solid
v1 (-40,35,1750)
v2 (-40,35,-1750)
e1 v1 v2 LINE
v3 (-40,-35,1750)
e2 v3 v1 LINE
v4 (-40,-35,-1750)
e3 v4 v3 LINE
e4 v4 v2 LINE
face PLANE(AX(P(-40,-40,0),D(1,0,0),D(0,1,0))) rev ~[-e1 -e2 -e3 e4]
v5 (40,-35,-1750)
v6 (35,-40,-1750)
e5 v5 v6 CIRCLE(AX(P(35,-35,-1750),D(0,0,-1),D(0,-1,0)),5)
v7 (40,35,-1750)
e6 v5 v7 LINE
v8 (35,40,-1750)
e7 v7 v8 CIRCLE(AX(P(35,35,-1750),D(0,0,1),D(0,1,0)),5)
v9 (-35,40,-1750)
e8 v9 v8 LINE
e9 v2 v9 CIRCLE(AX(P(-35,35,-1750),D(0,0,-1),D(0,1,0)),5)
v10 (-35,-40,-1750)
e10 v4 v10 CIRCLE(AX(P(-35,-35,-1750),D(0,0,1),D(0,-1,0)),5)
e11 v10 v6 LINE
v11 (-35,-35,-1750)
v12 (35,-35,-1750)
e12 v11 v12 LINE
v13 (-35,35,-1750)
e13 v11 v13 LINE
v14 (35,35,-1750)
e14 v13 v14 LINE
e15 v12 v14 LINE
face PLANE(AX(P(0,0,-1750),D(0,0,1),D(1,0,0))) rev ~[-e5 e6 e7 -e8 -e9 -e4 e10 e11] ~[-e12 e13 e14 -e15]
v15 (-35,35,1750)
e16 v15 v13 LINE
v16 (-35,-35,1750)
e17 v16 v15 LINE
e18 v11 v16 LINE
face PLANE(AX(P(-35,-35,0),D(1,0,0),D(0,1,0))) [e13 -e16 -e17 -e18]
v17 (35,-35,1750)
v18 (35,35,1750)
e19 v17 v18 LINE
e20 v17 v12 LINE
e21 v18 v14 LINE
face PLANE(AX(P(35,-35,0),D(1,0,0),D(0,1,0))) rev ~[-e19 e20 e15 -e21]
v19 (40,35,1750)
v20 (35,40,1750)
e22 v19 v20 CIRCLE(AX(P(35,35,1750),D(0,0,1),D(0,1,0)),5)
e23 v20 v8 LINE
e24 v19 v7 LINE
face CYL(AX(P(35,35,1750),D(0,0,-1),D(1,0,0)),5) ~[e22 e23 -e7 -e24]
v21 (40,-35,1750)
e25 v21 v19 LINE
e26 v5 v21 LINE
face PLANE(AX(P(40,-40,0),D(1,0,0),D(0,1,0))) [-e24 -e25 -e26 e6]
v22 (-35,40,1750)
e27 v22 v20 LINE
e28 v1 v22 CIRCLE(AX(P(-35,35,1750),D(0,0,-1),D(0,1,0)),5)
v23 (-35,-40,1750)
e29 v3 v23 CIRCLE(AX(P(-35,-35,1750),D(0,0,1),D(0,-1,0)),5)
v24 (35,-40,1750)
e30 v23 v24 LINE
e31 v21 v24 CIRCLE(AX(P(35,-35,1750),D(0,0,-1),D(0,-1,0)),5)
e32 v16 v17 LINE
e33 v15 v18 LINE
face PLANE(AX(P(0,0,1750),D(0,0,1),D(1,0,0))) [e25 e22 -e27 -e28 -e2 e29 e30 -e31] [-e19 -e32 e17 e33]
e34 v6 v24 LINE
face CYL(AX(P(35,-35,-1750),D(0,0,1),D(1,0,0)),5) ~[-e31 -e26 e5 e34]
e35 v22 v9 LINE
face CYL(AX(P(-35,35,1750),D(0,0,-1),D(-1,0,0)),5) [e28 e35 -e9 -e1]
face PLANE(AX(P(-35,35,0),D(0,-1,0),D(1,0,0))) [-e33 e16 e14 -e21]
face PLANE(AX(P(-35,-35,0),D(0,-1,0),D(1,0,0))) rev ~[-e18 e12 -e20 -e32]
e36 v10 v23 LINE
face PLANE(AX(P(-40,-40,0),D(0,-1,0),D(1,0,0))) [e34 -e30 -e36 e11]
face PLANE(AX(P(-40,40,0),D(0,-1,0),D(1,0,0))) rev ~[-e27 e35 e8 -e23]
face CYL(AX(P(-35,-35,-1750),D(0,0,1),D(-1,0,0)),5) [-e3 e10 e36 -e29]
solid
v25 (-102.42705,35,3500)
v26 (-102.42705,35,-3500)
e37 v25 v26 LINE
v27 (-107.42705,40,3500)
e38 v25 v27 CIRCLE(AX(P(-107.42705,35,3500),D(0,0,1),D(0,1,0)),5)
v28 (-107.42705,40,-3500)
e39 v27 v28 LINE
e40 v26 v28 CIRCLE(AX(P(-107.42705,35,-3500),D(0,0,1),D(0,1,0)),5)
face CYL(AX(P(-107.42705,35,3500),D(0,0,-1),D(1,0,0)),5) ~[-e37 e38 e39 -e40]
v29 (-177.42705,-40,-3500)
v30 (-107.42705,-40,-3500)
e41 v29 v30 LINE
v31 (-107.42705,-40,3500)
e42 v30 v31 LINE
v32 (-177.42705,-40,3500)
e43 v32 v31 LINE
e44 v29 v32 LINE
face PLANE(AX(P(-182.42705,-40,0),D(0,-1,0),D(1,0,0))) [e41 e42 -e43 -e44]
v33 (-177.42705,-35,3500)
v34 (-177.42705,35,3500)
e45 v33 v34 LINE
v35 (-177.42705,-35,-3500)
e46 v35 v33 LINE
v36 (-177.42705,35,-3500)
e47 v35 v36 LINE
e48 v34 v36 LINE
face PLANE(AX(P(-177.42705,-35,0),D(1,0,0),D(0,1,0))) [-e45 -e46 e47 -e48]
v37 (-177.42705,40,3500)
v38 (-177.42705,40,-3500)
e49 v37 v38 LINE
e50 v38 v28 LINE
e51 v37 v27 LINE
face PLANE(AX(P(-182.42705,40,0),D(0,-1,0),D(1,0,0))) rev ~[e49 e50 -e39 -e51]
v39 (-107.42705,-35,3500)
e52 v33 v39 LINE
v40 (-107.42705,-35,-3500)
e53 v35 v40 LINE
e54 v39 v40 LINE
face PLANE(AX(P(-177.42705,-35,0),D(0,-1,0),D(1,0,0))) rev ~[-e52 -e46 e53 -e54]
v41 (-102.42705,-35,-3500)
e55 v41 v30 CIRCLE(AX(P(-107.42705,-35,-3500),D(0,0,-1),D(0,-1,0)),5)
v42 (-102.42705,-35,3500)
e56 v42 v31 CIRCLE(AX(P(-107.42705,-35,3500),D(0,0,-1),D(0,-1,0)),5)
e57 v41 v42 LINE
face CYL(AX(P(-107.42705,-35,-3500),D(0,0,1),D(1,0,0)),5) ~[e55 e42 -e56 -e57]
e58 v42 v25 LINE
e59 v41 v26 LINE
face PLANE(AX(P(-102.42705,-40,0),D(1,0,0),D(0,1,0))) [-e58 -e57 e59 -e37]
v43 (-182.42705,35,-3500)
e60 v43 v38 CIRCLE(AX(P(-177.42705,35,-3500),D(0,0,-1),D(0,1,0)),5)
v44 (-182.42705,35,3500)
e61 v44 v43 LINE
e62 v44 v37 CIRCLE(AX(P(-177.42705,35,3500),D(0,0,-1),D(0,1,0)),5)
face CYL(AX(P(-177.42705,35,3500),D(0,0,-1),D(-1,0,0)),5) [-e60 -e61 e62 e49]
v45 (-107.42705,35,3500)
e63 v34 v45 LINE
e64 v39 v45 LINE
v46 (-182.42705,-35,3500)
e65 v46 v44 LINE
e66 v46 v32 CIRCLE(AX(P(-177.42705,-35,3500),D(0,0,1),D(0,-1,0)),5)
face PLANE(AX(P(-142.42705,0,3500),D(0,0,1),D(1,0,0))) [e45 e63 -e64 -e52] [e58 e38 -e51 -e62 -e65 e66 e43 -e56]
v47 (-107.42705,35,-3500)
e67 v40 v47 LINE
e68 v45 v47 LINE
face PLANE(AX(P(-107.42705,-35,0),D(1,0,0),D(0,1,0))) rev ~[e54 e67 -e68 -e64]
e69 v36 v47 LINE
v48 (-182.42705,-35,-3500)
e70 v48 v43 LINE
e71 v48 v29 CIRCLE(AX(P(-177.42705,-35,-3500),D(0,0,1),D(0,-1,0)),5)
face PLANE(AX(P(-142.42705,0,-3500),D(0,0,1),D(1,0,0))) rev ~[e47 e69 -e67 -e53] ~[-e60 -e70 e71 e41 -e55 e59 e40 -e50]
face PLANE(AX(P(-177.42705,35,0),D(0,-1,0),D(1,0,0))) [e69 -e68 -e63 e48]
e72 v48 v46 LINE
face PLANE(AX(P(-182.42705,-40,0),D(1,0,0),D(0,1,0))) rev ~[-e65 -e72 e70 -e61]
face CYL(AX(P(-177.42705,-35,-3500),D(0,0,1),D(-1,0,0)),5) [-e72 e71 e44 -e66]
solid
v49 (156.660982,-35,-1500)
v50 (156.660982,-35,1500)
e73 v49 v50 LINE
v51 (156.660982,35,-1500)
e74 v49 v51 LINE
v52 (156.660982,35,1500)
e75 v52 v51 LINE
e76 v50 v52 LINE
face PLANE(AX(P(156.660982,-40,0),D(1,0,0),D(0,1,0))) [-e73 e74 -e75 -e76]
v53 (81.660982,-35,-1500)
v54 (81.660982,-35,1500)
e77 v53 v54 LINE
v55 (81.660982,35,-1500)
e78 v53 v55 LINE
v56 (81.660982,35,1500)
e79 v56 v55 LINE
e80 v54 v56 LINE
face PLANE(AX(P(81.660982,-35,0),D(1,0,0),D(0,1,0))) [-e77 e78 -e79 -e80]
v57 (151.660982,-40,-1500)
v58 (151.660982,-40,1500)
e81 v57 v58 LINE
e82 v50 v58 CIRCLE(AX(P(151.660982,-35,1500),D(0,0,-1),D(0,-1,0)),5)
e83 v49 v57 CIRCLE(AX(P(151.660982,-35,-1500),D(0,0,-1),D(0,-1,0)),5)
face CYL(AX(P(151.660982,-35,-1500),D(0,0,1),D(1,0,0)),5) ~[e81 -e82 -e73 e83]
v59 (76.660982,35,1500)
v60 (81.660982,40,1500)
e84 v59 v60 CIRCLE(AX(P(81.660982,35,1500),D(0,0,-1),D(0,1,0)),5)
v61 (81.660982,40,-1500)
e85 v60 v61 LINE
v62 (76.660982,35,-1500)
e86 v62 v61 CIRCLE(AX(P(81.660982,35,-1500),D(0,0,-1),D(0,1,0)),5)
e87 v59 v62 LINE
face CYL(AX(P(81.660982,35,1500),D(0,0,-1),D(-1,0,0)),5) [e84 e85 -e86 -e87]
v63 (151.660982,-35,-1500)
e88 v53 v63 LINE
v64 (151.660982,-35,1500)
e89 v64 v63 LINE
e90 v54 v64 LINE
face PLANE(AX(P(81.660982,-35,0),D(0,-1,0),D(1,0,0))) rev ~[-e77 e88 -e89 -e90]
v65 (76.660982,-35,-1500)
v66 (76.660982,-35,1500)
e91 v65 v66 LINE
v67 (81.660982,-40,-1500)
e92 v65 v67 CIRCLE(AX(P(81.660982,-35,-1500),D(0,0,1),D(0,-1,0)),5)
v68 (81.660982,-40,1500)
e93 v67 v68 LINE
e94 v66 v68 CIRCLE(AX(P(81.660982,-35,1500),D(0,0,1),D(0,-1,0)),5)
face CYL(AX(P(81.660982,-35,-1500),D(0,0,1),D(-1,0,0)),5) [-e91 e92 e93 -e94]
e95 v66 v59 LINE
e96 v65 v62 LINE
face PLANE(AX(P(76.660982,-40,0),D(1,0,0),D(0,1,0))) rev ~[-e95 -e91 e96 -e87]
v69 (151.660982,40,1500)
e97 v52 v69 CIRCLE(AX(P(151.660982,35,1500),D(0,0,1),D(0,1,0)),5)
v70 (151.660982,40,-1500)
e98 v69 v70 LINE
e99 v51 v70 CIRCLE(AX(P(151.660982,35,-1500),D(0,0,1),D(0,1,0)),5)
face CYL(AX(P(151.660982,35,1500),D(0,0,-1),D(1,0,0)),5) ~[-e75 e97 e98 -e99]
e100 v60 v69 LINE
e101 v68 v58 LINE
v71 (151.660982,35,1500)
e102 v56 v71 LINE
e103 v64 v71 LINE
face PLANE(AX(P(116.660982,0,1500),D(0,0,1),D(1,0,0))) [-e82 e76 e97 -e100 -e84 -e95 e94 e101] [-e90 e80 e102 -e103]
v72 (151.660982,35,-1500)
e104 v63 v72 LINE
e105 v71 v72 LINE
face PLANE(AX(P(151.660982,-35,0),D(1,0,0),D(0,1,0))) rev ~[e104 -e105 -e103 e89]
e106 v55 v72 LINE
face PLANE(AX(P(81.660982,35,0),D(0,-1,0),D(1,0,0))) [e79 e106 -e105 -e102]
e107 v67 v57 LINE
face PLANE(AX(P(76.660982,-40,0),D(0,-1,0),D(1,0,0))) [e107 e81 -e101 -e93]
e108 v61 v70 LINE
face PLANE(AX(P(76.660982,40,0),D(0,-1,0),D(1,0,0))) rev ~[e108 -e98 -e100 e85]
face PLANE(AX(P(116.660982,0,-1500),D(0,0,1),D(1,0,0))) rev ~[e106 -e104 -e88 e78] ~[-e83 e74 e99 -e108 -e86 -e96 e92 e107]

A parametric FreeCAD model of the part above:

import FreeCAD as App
import Part
import Sketcher
Q = App.Units.Quantity


def edges_at(feature, points):
    """Names of the edges that pass closest to the given points."""
    edges = feature.Shape.Edges
    near = lambda p: min(range(len(edges)), key=lambda i: edges[i].distToShape(Part.Vertex(*p))[0])
    return sorted({f"Edge{near(p) + 1}" for p in points})


def add_polygon(sketch, points):
    """Adds a closed chain of lines whose ends are joined by coincident constraints."""
    first, n = sketch.GeometryCount, len(points)
    for a, b in zip(points, points[1:] + points[:1]):
        sketch.addGeometry(Part.LineSegment(App.Vector(*a, 0), App.Vector(*b, 0)), False)
    for i in range(n):
        sketch.addConstraint(Sketcher.Constraint("Coincident", first + i, 2, first + (i + 1) % n, 1))

doc = App.newDocument("Part")
body = doc.addObject("PartDesign::Body", "Body")

# Sketch on XY plane
sketch1 = body.newObject("Sketcher::SketchObject", "Sketch")
sketch1.AttachmentSupport = (doc.getObject("XY_Plane"), [""])
sketch1.MapMode = "FlatFace"
add_polygon(sketch1, [(-40, 40), (-40, -40), (40, -40), (40, 40)])  # lines 0-3
add_polygon(sketch1, [(35, -35), (-35, -35), (-35, 35), (35, 35)])  # lines 4-7
sketch1.addConstraint([
    Sketcher.Constraint("Vertical", 0),
    Sketcher.Constraint("Horizontal", 1),
    Sketcher.Constraint("Vertical", 2),
    Sketcher.Constraint("Horizontal", 3),
    Sketcher.Constraint("Horizontal", 4),
    Sketcher.Constraint("Vertical", 5),
    Sketcher.Constraint("Horizontal", 6),
    Sketcher.Constraint("Vertical", 7),
    Sketcher.Constraint("Symmetric", 0, 2, 2, 2, -1, 1),
    Sketcher.Constraint("Symmetric", 4, 2, 6, 2, -1, 1),
    Sketcher.Constraint("Equal", 3, 0),
    Sketcher.Constraint("Equal", 6, 5),
    Sketcher.Constraint("DistanceX", 1, 1, 1, 2, Q("80 mm")),
    Sketcher.Constraint("DistanceX", 4, 2, 4, 1, Q("70 mm")),
])
pad1 = body.newObject("PartDesign::Pad", "Pad")
pad1.Profile = sketch1
pad1.Length = 3500
pad1.Midplane = True
doc.recompute()

fillet = body.newObject("PartDesign::Fillet", "Fillet")
fillet.Base = (pad1, edges_at(pad1, [
    (-40, 40, 0),
    (-40, -40, 0),
    (40, -40, 0),
    (40, 40, 0),
]))
fillet.Radius = 5
body2 = doc.addObject("PartDesign::Body", "Body001")

# Sketch on XY plane
sketch2 = body2.newObject("Sketcher::SketchObject", "Sketch001")
sketch2.AttachmentSupport = (doc.getObject("XY_Plane001"), [""])
sketch2.MapMode = "FlatFace"
add_polygon(sketch2, [(77, 40), (77, -40), (157, -40), (157, 40)])  # lines 0-3
add_polygon(sketch2, [(152, -35), (82, -35), (82, 35), (152, 35)])  # lines 4-7
sketch2.addConstraint([
    Sketcher.Constraint("Vertical", 0),
    Sketcher.Constraint("Horizontal", 1),
    Sketcher.Constraint("Vertical", 2),
    Sketcher.Constraint("Horizontal", 3),
    Sketcher.Constraint("Horizontal", 4),
    Sketcher.Constraint("Vertical", 5),
    Sketcher.Constraint("Horizontal", 6),
    Sketcher.Constraint("Vertical", 7),
    Sketcher.Constraint("Equal", 3, 0),
    Sketcher.Constraint("Equal", 6, 5),
    Sketcher.Constraint("DistanceX", 1, 1, 1, 2, Q("80 mm")),
    Sketcher.Constraint("DistanceX", 4, 2, 4, 1, Q("70 mm")),
    Sketcher.Constraint("DistanceY", 0, 2, -1, 1, Q("40 mm")),
    Sketcher.Constraint("DistanceY", 4, 2, -1, 1, Q("35 mm")),
    Sketcher.Constraint("DistanceX", 0, 2, 4, 2, Q("5 mm")),
    Sketcher.Constraint("DistanceX", -1, 1, 0, 2, Q("76.660982 mm")),
])
pad2 = body2.newObject("PartDesign::Pad", "Pad001")
pad2.Profile = sketch2
pad2.Length = 3000
pad2.Midplane = True
doc.recompute()

fillet2 = body2.newObject("PartDesign::Fillet", "Fillet001")
fillet2.Base = (pad2, edges_at(pad2, [
    (156.661, -40, 0),
    (76.661, -40, 0),
    (156.661, 40, 0),
    (76.661, 40, 0),
]))
fillet2.Radius = 5
body3 = doc.addObject("PartDesign::Body", "Body002")

# Sketch on XY plane
sketch3 = body3.newObject("Sketcher::SketchObject", "Sketch002")
sketch3.AttachmentSupport = (doc.getObject("XY_Plane002"), [""])
sketch3.MapMode = "FlatFace"
add_polygon(sketch3, [(-182, 40), (-182, -40), (-102, -40), (-102, 40)])  # lines 0-3
add_polygon(sketch3, [(-107, -35), (-177, -35), (-177, 35), (-107, 35)])  # lines 4-7
sketch3.addConstraint([
    Sketcher.Constraint("Vertical", 0),
    Sketcher.Constraint("Horizontal", 1),
    Sketcher.Constraint("Vertical", 2),
    Sketcher.Constraint("Horizontal", 3),
    Sketcher.Constraint("Horizontal", 4),
    Sketcher.Constraint("Vertical", 5),
    Sketcher.Constraint("Horizontal", 6),
    Sketcher.Constraint("Vertical", 7),
    Sketcher.Constraint("Equal", 3, 0),
    Sketcher.Constraint("Equal", 6, 5),
    Sketcher.Constraint("DistanceX", 1, 1, 1, 2, Q("80 mm")),
    Sketcher.Constraint("DistanceX", 4, 2, 4, 1, Q("70 mm")),
    Sketcher.Constraint("DistanceY", 0, 2, -1, 1, Q("40 mm")),
    Sketcher.Constraint("DistanceY", 4, 2, -1, 1, Q("35 mm")),
    Sketcher.Constraint("DistanceX", 0, 2, 4, 2, Q("5 mm")),
    Sketcher.Constraint("DistanceX", 0, 2, -1, 1, Q("182.42705 mm")),
])
pad3 = body3.newObject("PartDesign::Pad", "Pad002")
pad3.Profile = sketch3
pad3.Length = 7000
pad3.Midplane = True
doc.recompute()

fillet3 = body3.newObject("PartDesign::Fillet", "Fillet002")
fillet3.Base = (pad3, edges_at(pad3, [
    (-102.427, -40, 0),
    (-182.427, -40, 0),
    (-102.427, 40, 0),
    (-182.427, 40, 0),
]))
fillet3.Radius = 5

doc.recompute()
